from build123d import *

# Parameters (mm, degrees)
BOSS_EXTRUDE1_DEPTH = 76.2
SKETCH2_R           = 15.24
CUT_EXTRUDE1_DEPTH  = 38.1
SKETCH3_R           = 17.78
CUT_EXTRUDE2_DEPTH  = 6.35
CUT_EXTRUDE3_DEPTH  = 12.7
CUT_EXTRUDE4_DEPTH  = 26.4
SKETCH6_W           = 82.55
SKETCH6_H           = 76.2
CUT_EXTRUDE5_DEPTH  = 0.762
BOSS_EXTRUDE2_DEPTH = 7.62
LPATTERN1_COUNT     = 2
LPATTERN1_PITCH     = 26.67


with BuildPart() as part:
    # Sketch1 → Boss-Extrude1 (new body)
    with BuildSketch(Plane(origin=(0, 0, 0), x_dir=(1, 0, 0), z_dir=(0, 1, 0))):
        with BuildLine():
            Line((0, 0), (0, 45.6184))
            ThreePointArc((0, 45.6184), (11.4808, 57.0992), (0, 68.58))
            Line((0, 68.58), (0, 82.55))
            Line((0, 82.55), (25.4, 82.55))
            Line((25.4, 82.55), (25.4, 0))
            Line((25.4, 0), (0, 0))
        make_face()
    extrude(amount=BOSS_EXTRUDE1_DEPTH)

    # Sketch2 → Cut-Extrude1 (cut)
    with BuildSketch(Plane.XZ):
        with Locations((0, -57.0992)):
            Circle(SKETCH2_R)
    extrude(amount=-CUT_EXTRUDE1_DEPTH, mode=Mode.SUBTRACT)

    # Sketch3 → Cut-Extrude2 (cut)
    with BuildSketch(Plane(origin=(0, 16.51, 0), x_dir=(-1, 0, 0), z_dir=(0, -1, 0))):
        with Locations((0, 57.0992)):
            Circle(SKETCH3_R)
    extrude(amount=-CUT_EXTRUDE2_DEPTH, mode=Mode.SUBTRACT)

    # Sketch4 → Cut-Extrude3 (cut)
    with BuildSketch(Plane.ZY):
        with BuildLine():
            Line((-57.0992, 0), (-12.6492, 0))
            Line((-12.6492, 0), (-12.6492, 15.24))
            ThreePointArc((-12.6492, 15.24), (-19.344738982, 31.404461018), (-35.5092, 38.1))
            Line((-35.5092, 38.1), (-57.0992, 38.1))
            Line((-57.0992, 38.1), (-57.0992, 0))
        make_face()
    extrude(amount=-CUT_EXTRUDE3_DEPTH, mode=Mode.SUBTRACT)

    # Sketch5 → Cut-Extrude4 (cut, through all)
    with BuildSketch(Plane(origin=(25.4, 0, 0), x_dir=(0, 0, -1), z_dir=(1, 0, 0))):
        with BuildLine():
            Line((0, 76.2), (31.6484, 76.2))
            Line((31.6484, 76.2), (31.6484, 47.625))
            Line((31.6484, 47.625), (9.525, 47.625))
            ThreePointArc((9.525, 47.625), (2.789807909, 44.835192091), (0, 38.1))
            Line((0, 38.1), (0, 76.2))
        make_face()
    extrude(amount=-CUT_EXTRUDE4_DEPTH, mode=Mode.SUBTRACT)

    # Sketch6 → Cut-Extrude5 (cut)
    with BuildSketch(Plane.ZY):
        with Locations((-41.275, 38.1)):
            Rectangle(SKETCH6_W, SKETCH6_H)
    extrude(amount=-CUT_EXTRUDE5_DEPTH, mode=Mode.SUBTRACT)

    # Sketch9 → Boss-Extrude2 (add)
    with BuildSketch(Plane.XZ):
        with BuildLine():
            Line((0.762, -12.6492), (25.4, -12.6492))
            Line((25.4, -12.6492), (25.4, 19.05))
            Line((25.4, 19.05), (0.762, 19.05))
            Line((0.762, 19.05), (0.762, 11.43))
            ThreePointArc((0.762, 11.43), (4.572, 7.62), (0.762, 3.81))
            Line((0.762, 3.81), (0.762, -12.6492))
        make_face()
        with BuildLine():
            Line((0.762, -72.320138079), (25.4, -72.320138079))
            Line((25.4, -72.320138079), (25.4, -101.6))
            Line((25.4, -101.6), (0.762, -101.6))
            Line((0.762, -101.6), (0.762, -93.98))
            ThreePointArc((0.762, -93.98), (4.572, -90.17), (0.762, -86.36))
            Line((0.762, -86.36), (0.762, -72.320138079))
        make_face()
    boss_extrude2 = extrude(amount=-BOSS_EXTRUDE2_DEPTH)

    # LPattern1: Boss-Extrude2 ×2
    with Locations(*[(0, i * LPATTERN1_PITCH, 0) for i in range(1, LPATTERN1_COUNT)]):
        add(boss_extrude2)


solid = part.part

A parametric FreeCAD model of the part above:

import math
import FreeCAD as App
import Part
import Sketcher

V = App.Vector
Q = App.Units.Quantity


def add_polygon(sketch, points):
    """Adds a closed chain of lines whose ends are joined by coincident constraints."""
    first, n = sketch.GeometryCount, len(points)
    for a, b in zip(points, points[1:] + points[:1]):
        sketch.addGeometry(Part.LineSegment(App.Vector(*a, 0), App.Vector(*b, 0)), False)
    for i in range(n):
        sketch.addConstraint(Sketcher.Constraint("Coincident", first + i, 2, first + (i + 1) % n, 1))

doc = App.newDocument("Part")
body = doc.addObject("PartDesign::Body", "Body")

sketch1 = body.newObject("Sketcher::SketchObject", "Sketch")
sketch1.AttachmentSupport = (doc.getObject("XZ_Plane"), [""])
sketch1.MapMode = "FlatFace"
sketch1.addGeometry([
    Part.LineSegment(V(0, -45.6184, 0), V(0, 0, 0)),
    Part.LineSegment(V(0, 0, 0), V(25.4, 0, 0)),
    Part.LineSegment(V(25.4, 0, 0), V(25.4, -82.55, 0)),
    Part.LineSegment(V(25.4, -82.55, 0), V(0, -82.55, 0)),
    Part.LineSegment(V(0, -82.55, 0), V(0, -68.58, 0)),
    Part.ArcOfCircle(Part.Circle(V(0, -57.0992, 0), V(0, 0, 1), 11.4808), math.radians(-90), math.radians(90)),
], False)
sketch1.addConstraint([
    Sketcher.Constraint("Coincident", 0, 2, 1, 1),
    Sketcher.Constraint("Coincident", 1, 2, 2, 1),
    Sketcher.Constraint("Coincident", 2, 2, 3, 1),
    Sketcher.Constraint("Coincident", 3, 2, 4, 1),
    Sketcher.Constraint("Coincident", 4, 2, 5, 1),
    Sketcher.Constraint("Coincident", 5, 2, 0, 1),
    Sketcher.Constraint("Vertical", 0),
    Sketcher.Constraint("Horizontal", 1),
    Sketcher.Constraint("Vertical", 2),
    Sketcher.Constraint("Horizontal", 3),
    Sketcher.Constraint("Vertical", 4),
    Sketcher.Constraint("Coincident", 0, 2, -1, 1),
    Sketcher.Constraint("PointOnObject", 5, 3, -2),
    Sketcher.Constraint("PointOnObject", 3, 2, -2),
    Sketcher.Constraint("DistanceX", 1, 1, 1, 2, Q("1 in")),
    Sketcher.Constraint("Radius", 5, Q("0.452 in")),
    Sketcher.Constraint("DistanceY", 2, 2, 2, 1, Q("3.25 in")),
    Sketcher.Constraint("DistanceY", 4, 1, 4, 2, Q("0.55 in")),
])
pad1 = body.newObject("PartDesign::Pad", "Pad")
pad1.Profile = sketch1
pad1.Length = Q("3 in")
pad1.Reversed = True

sketch2 = body.newObject("Sketcher::SketchObject", "Sketch001")
sketch2.AttachmentSupport = (doc.getObject("XZ_Plane"), [""])
sketch2.MapMode = "FlatFace"
sketch2.addGeometry(Part.Circle(V(0, -57.0992, 0), V(0, 0, 1), 15.24), False)
sketch2.addConstraint([
    Sketcher.Constraint("PointOnObject", 0, 3, -2),
    Sketcher.Constraint("Diameter", 0, Q("1.2 in")),
    Sketcher.Constraint("DistanceY", 0, 3, -1, 1, Q("2.248 in")),
])
pocket1 = body.newObject("PartDesign::Pocket", "Pocket")
pocket1.Profile = sketch2
pocket1.Length = Q("1.5 in")

sketch3 = body.newObject("Sketcher::SketchObject", "Sketch002")
sketch3.AttachmentSupport = (doc.getObject("XZ_Plane"), [""])
sketch3.MapMode = "FlatFace"
sketch3.AttachmentOffset = App.Placement(V(0, 0, -0.65 * 25.4), App.Rotation())
sketch3.addGeometry(Part.Circle(V(0, -57.0992, 0), V(0, 0, 1), 17.78), False)
sketch3.addConstraint([
    Sketcher.Constraint("PointOnObject", 0, 3, -2),
    Sketcher.Constraint("Diameter", 0, Q("1.4 in")),
    Sketcher.Constraint("DistanceY", 0, 3, -1, 1, Q("2.248 in")),
])
pocket2 = body.newObject("PartDesign::Pocket", "Pocket001")
pocket2.Profile = sketch3
pocket2.Length = Q("0.25 in")

sketch4 = body.newObject("Sketcher::SketchObject", "Sketch003")
sketch4.AttachmentSupport = (doc.getObject("YZ_Plane"), [""])
sketch4.MapMode = "FlatFace"
sketch4.addGeometry([
    Part.LineSegment(V(0, -57.0992, 0), V(0, -12.6492, 0)),
    Part.LineSegment(V(0, -12.6492, 0), V(15.24, -12.6492, 0)),
    Part.ArcOfCircle(Part.Circle(V(15.24, -35.5092, 0), V(0, 0, 1), 22.86), math.radians(0), math.radians(90)),
    Part.LineSegment(V(38.1, -35.5092, 0), V(38.1, -57.0992, 0)),
    Part.LineSegment(V(38.1, -57.0992, 0), V(0, -57.0992, 0)),
], False)
sketch4.addConstraint([
    Sketcher.Constraint("Coincident", 0, 2, 1, 1),
    Sketcher.Constraint("Tangent", 1, 2, 2, 2),
    Sketcher.Constraint("Tangent", 2, 1, 3, 1),
    Sketcher.Constraint("Coincident", 3, 2, 4, 1),
    Sketcher.Constraint("Coincident", 4, 2, 0, 1),
    Sketcher.Constraint("Vertical", 0),
    Sketcher.Constraint("Horizontal", 1),
    Sketcher.Constraint("Vertical", 3),
    Sketcher.Constraint("Horizontal", 4),
    Sketcher.Constraint("PointOnObject", 0, 2, -2),
    Sketcher.Constraint("Radius", 2, Q("0.9 in")),
    Sketcher.Constraint("DistanceX", 1, 1, 1, 2, Q("0.6 in")),
    Sketcher.Constraint("DistanceY", 0, 1, 0, 2, Q("1.75 in")),
    Sketcher.Constraint("DistanceY", 2, 3, -1, 1, Q("1.398 in")),
])
pocket3 = body.newObject("PartDesign::Pocket", "Pocket002")
pocket3.Profile = sketch4
pocket3.Length = Q("0.5 in")
pocket3.Reversed = True

sketch5 = body.newObject("Sketcher::SketchObject", "Sketch004")
sketch5.AttachmentSupport = (doc.getObject("YZ_Plane"), [""])
sketch5.MapMode = "FlatFace"
sketch5.AttachmentOffset = App.Placement(V(0, 0, 1 * 25.4), App.Rotation())
sketch5.addGeometry([
    Part.LineSegment(V(76.2, -31.6484, 0), V(76.2, 0, 0)),
    Part.LineSegment(V(76.2, 0, 0), V(38.1, 0, 0)),
    Part.ArcOfCircle(Part.Circle(V(38.1, -9.525, 0), V(0, 0, 1), 9.525), math.radians(0), math.radians(90)),
    Part.LineSegment(V(47.625, -9.525, 0), V(47.625, -31.6484, 0)),
    Part.LineSegment(V(47.625, -31.6484, 0), V(76.2, -31.6484, 0)),
], False)
sketch5.addConstraint([
    Sketcher.Constraint("Coincident", 0, 2, 1, 1),
    Sketcher.Constraint("Tangent", 1, 2, 2, 2),
    Sketcher.Constraint("Tangent", 2, 1, 3, 1),
    Sketcher.Constraint("Coincident", 3, 2, 4, 1),
    Sketcher.Constraint("Coincident", 4, 2, 0, 1),
    Sketcher.Constraint("Vertical", 0),
    Sketcher.Constraint("Horizontal", 1),
    Sketcher.Constraint("Vertical", 3),
    Sketcher.Constraint("Horizontal", 4),
    Sketcher.Constraint("PointOnObject", 0, 2, -1),
    Sketcher.Constraint("DistanceX", 1, 2, 1, 1, Q("1.5 in")),
    Sketcher.Constraint("DistanceX", -1, 1, 0, 2, Q("3 in")),
    Sketcher.Constraint("Radius", 2, Q("0.375 in")),
    Sketcher.Constraint("DistanceY", 0, 1, 0, 2, Q("1.246 in")),
])
pocket4 = body.newObject("PartDesign::Pocket", "Pocket003")
pocket4.Profile = sketch5
pocket4.Type = "ThroughAll"

sketch6 = body.newObject("Sketcher::SketchObject", "Sketch005")
sketch6.AttachmentSupport = (doc.getObject("YZ_Plane"), [""])
sketch6.MapMode = "FlatFace"
add_polygon(sketch6, [(76.2, -82.55), (0, -82.55), (0, 0), (76.2, 0)])
sketch6.addConstraint([
    Sketcher.Constraint("Horizontal", 0),
    Sketcher.Constraint("Vertical", 1),
    Sketcher.Constraint("Horizontal", 2),
    Sketcher.Constraint("Vertical", 3),
    Sketcher.Constraint("Coincident", 1, 2, -1, 1),
    Sketcher.Constraint("DistanceX", 0, 2, 0, 1, Q("3 in")),
    Sketcher.Constraint("DistanceY", 1, 1, 1, 2, Q("3.25 in")),
])
pocket5 = body.newObject("PartDesign::Pocket", "Pocket004")
pocket5.Profile = sketch6
pocket5.Length = Q("0.03 in")
pocket5.Reversed = True

sketch7 = body.newObject("Sketcher::SketchObject", "Sketch006")
sketch7.AttachmentSupport = (doc.getObject("XZ_Plane"), [""])
sketch7.MapMode = "FlatFace"
sketch7.addGeometry([
    Part.LineSegment(V(0.762, -12.6492, 0), V(25.4, -12.6492, 0)),
    Part.LineSegment(V(25.4, -12.6492, 0), V(25.4, 19.05, 0)),
    Part.LineSegment(V(25.4, 19.05, 0), V(0.762, 19.05, 0)),
    Part.LineSegment(V(0.762, 19.05, 0), V(0.762, 11.43, 0)),
    Part.ArcOfCircle(Part.Circle(V(0.762, 7.62, 0), V(0, 0, 1), 3.81), math.radians(-90), math.radians(90)),
    Part.LineSegment(V(0.762, 3.81, 0), V(0.762, -12.6492, 0)),
    Part.LineSegment(V(25.4, -72.320138, 0), V(0.762, -72.320138, 0)),
    Part.LineSegment(V(0.762, -72.320138, 0), V(0.762, -86.36, 0)),
    Part.ArcOfCircle(Part.Circle(V(0.762, -90.17, 0), V(0, 0, 1), 3.81), math.radians(-90), math.radians(90)),
    Part.LineSegment(V(0.762, -93.98, 0), V(0.762, -101.6, 0)),
    Part.LineSegment(V(0.762, -101.6, 0), V(25.4, -101.6, 0)),
    Part.LineSegment(V(25.4, -101.6, 0), V(25.4, -72.320138, 0)),
], False)
sketch7.addConstraint([
    Sketcher.Constraint("Coincident", 0, 2, 1, 1),
    Sketcher.Constraint("Coincident", 1, 2, 2, 1),
    Sketcher.Constraint("Coincident", 2, 2, 3, 1),
    Sketcher.Constraint("Coincident", 3, 2, 4, 2),
    Sketcher.Constraint("Coincident", 4, 1, 5, 1),
    Sketcher.Constraint("Coincident", 5, 2, 0, 1),
    Sketcher.Constraint("Coincident", 6, 2, 7, 1),
    Sketcher.Constraint("Coincident", 7, 2, 8, 2),
    Sketcher.Constraint("Coincident", 8, 1, 9, 1),
    Sketcher.Constraint("Coincident", 9, 2, 10, 1),
    Sketcher.Constraint("Coincident", 10, 2, 11, 1),
    Sketcher.Constraint("Coincident", 11, 2, 6, 1),
    Sketcher.Constraint("Horizontal", 0),
    Sketcher.Constraint("Vertical", 1),
    Sketcher.Constraint("Horizontal", 2),
    Sketcher.Constraint("Vertical", 3),
    Sketcher.Constraint("Vertical", 5),
    Sketcher.Constraint("Horizontal", 6),
    Sketcher.Constraint("Vertical", 7),
    Sketcher.Constraint("Vertical", 9),
    Sketcher.Constraint("Horizontal", 10),
    Sketcher.Constraint("Vertical", 11),
    Sketcher.Constraint("Equal", 4, 8),
    Sketcher.Constraint("Vertical", 4, 3, 8, 3),
    Sketcher.Constraint("Vertical", 8, 3, 2, 2),
    Sketcher.Constraint("Vertical", 3, 2, 4, 1),
    Sketcher.Constraint("Vertical", 5, 2, 6, 2),
    Sketcher.Constraint("Vertical", 7, 2, 8, 1),
    Sketcher.Constraint("Vertical", 1, 2, 10, 2),
    Sketcher.Constraint("Equal", 3, 9),
    Sketcher.Constraint("Radius", 4, Q("0.15 in")),
    Sketcher.Constraint("DistanceY", 3, 2, 3, 1, Q("0.3 in")),
    Sketcher.Constraint("DistanceX", -1, 1, 0, 2, Q("1 in")),
    Sketcher.Constraint("DistanceY", 9, 2, -1, 1, Q("4 in")),
    Sketcher.Constraint("DistanceY", 8, 3, 3, 2, Q("4 in")),
    Sketcher.Constraint("DistanceX", 0, 1, 0, 2, Q("0.97 in")),
    Sketcher.Constraint("DistanceY", 1, 1, 1, 2, Q("1.248 in")),
    Sketcher.Constraint("DistanceY", 7, 2, 7, 1, 14.039862),
])
pad2 = body.newObject("PartDesign::Pad", "Pad001")
pad2.Profile = sketch7
pad2.Length = Q("0.3 in")
pad2.Reversed = True
doc.recompute()

linearpattern = body.newObject("PartDesign::LinearPattern", "LinearPattern")
linearpattern.Originals = [pad2]
linearpattern.Direction = (doc.getObject("Y_Axis"), [""])
linearpattern.Mode = "offset"
linearpattern.Offset = Q("1.05 in")
linearpattern.Occurrences = 2
body.Tip = linearpattern

doc.recompute()
